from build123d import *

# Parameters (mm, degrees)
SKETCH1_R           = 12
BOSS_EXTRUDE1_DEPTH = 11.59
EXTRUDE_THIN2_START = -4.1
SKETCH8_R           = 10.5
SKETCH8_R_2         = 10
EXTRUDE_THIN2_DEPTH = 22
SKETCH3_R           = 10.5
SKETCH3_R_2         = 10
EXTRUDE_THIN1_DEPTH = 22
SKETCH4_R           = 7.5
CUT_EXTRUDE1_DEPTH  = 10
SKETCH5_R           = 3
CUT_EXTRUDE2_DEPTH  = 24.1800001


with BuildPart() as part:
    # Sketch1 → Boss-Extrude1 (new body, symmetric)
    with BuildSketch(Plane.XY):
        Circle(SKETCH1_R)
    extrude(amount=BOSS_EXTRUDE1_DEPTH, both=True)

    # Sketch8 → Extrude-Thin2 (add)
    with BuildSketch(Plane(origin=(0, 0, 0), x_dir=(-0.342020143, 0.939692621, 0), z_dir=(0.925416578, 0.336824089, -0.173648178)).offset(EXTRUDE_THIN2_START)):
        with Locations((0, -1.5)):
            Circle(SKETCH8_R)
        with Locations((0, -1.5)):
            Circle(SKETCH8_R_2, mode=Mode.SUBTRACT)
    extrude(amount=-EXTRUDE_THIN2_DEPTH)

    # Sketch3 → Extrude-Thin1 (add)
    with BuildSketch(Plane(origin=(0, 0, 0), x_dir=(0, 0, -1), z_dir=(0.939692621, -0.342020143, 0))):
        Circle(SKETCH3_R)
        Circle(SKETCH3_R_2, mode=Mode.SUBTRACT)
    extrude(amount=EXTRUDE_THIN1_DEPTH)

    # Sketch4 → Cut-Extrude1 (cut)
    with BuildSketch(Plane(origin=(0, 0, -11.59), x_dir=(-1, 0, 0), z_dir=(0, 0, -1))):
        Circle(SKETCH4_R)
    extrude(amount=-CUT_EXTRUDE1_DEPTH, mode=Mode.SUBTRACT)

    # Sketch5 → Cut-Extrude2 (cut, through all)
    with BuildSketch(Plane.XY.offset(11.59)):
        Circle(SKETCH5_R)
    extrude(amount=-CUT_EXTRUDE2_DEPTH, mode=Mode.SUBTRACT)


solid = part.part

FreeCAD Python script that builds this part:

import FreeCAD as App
import Part
import Sketcher
from FreeCAD import Vector

doc = App.newDocument("Part")
params = doc.addObject("Spreadsheet::Sheet", "Params")
for row, (alias, value) in enumerate([
    ("sketch1_diameter", "24 mm"),
    ("pad1_length", "23.18 mm"),
    ("sketch2_diameter", "21 mm"),
    ("sketch2_diameter2", "20 mm"),
    ("pad2_length", "22 mm"),
    ("sketch3_diameter", "21 mm"),
    ("sketch3_diameter2", "20 mm"),
    ("pad3_length", "22 mm"),
    ("sketch4_diameter", "15 mm"),
    ("pocket1_length", "10 mm"),
    ("sketch5_diameter", "6 mm"),
], start=1):
    params.set(f"A{row}", alias)
    params.set(f"B{row}", "=" + value)
    params.setAlias(f"B{row}", alias)

body = doc.addObject("PartDesign::Body", "Body")

sketch1 = body.newObject("Sketcher::SketchObject", "Sketch")
sketch1.AttachmentSupport = (doc.getObject("XY_Plane"), [""])
sketch1.MapMode = "FlatFace"
sketch1.addGeometry(Part.Circle(Vector(0, 0, 0), Vector(0, 0, 1), 12), False)
sketch1.addConstraint([
    Sketcher.Constraint("Coincident", 0, 3, -1, 1),
    Sketcher.Constraint("Diameter", 0, 24.0),
])
sketch1.setExpression("Constraints[1]", "Params.sketch1_diameter")
pad1 = body.newObject("PartDesign::Pad", "Pad")
pad1.Profile = sketch1
pad1.setExpression("Length", "Params.pad1_length")
pad1.Midplane = True

sketch2 = body.newObject("Sketcher::SketchObject", "Sketch001")
sketch2.Placement = App.Placement(Vector(-3.794208, -1.380979, 0.711958), App.Rotation(Vector(-0.342020144, 0.939692621, 0), Vector(0.163175912, 0.059391175, 0.984807753), Vector(0.925416578, 0.336824089, -0.173648178), "ZXY"))
sketch2.addGeometry([
    Part.Circle(Vector(0, -1.5, 0), Vector(0, 0, 1), 10.5),
    Part.Circle(Vector(0, -1.5, 0), Vector(0, 0, 1), 10),
], False)
sketch2.addConstraint([
    Sketcher.Constraint("Coincident", 1, 3, 0, 3),
    Sketcher.Constraint("PointOnObject", 0, 3, -2),
    Sketcher.Constraint("Diameter", 0, 21.0),
    Sketcher.Constraint("Diameter", 1, 20.0),
    Sketcher.Constraint("DistanceY", 0, 3, -1, 1, 1.5),
])
sketch2.setExpression("Constraints[2]", "Params.sketch2_diameter")
sketch2.setExpression("Constraints[3]", "Params.sketch2_diameter2")
pad2 = body.newObject("PartDesign::Pad", "Pad001")
pad2.Profile = sketch2
pad2.setExpression("Length", "Params.pad2_length")
pad2.Reversed = True

sketch3 = body.newObject("Sketcher::SketchObject", "Sketch002")
sketch3.Placement = App.Placement(Vector(0, 0, 0), App.Rotation(Vector(0, 0, -1), Vector(0.342020143, 0.939692621, 0), Vector(0.939692621, -0.342020143, 0), "ZXY"))
sketch3.addGeometry([
    Part.Circle(Vector(0, 0, 0), Vector(0, 0, 1), 10.5),
    Part.Circle(Vector(0, 0, 0), Vector(0, 0, 1), 10),
], False)
sketch3.addConstraint([
    Sketcher.Constraint("Coincident", 0, 3, -1, 1),
    Sketcher.Constraint("Coincident", 1, 3, -1, 1),
    Sketcher.Constraint("Diameter", 0, 21.0),
    Sketcher.Constraint("Diameter", 1, 20.0),
])
sketch3.setExpression("Constraints[2]", "Params.sketch3_diameter")
sketch3.setExpression("Constraints[3]", "Params.sketch3_diameter2")
pad3 = body.newObject("PartDesign::Pad", "Pad002")
pad3.Profile = sketch3
pad3.setExpression("Length", "Params.pad3_length")

sketch4 = body.newObject("Sketcher::SketchObject", "Sketch003")
sketch4.AttachmentSupport = (doc.getObject("XY_Plane"), [""])
sketch4.MapMode = "FlatFace"
sketch4.AttachmentOffset = App.Placement(Vector(0, 0, -11.59), App.Rotation())
sketch4.addGeometry(Part.Circle(Vector(0, 0, 0), Vector(0, 0, 1), 7.5), False)
sketch4.addConstraint([
    Sketcher.Constraint("Coincident", 0, 3, -1, 1),
    Sketcher.Constraint("Diameter", 0, 15.0),
])
sketch4.setExpression("Constraints[1]", "Params.sketch4_diameter")
pocket1 = body.newObject("PartDesign::Pocket", "Pocket")
pocket1.Profile = sketch4
pocket1.setExpression("Length", "Params.pocket1_length")
pocket1.Reversed = True

sketch5 = body.newObject("Sketcher::SketchObject", "Sketch004")
sketch5.AttachmentSupport = (doc.getObject("XY_Plane"), [""])
sketch5.MapMode = "FlatFace"
sketch5.AttachmentOffset = App.Placement(Vector(0, 0, 11.59), App.Rotation())
sketch5.addGeometry(Part.Circle(Vector(0, 0, 0), Vector(0, 0, 1), 3), False)
sketch5.addConstraint([
    Sketcher.Constraint("Coincident", 0, 3, -1, 1),
    Sketcher.Constraint("Diameter", 0, 6.0),
])
sketch5.setExpression("Constraints[1]", "Params.sketch5_diameter")
pocket2 = body.newObject("PartDesign::Pocket", "Pocket001")
pocket2.Profile = sketch5
pocket2.Type = "ThroughAll"

doc.recompute()
